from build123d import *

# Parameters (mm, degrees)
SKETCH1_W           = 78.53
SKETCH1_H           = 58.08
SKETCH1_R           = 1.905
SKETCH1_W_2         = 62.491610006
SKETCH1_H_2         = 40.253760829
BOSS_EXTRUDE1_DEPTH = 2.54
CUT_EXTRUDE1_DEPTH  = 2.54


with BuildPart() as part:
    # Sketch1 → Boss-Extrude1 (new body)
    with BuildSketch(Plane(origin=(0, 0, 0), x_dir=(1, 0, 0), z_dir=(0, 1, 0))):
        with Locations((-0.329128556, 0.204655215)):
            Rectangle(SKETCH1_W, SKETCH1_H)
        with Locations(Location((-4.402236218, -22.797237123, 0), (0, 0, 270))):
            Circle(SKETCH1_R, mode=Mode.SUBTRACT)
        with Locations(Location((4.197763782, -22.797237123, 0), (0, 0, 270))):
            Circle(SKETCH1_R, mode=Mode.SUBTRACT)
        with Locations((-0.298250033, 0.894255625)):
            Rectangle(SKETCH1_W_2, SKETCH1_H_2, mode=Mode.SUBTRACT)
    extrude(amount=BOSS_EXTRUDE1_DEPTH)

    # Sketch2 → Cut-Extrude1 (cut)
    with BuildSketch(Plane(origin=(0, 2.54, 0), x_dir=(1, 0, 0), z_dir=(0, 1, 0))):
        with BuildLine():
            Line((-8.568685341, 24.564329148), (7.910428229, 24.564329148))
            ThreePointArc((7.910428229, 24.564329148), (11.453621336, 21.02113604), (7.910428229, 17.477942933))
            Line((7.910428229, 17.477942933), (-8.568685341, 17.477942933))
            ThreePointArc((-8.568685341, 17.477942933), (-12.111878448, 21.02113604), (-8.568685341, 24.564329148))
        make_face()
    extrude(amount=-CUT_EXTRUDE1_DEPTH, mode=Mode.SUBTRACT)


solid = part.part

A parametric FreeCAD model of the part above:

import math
import FreeCAD as App
import Part
import Sketcher
from FreeCAD import Vector
Q = App.Units.Quantity


def add_polygon(sketch, points):
    """Adds a closed chain of lines whose ends are joined by coincident constraints."""
    first, n = sketch.GeometryCount, len(points)
    for a, b in zip(points, points[1:] + points[:1]):
        sketch.addGeometry(Part.LineSegment(App.Vector(*a, 0), App.Vector(*b, 0)), False)
    for i in range(n):
        sketch.addConstraint(Sketcher.Constraint("Coincident", first + i, 2, first + (i + 1) % n, 1))

doc = App.newDocument("Part")
params = doc.addObject("Spreadsheet::Sheet", "Params")
for row, (alias, value) in enumerate([
    ("sketch1_diameter", "0.15 in"),
    ("pad1_length", "0.1 in"),
    ("pocket1_length", "0.1 in"),
], start=1):
    params.set(f"A{row}", alias)
    params.set(f"B{row}", "=" + value)
    params.setAlias(f"B{row}", alias)

body = doc.addObject("PartDesign::Body", "Body")

# Sketch on XZ plane
sketch1 = doc.addObject("Sketcher::SketchObject", "Sketch")
body.addObject(sketch1)
sketch1.AttachmentSupport = (doc.XZ_Plane, [""])
sketch1.MapMode = "FlatFace"
add_polygon(sketch1, [(-39.594129, -29.244655), (-39.594129, 28.835345), (38.935871, 28.835345), (38.935871, -29.244655)])  # lines 0-3
sketch1.addGeometry(Part.Circle(Vector(-4.402236, 22.797237, 0), Vector(0, 0, 1), 1.905), False)  # 4
sketch1.addGeometry(Part.Circle(Vector(4.197764, 22.797237, 0), Vector(0, 0, 1), 1.905), False)  # 5
add_polygon(sketch1, [(30.947555, 19.232625), (-31.544055, 19.232625), (-31.544055, -21.021136), (30.947555, -21.021136)])  # lines 6-9
sketch1.addConstraint([
    Sketcher.Constraint("Vertical", 0),
    Sketcher.Constraint("Horizontal", 1),
    Sketcher.Constraint("Vertical", 2),
    Sketcher.Constraint("Horizontal", 3),
    Sketcher.Constraint("Horizontal", 6),
    Sketcher.Constraint("Vertical", 7),
    Sketcher.Constraint("Horizontal", 8),
    Sketcher.Constraint("Vertical", 9),
    Sketcher.Constraint("Equal", 4, 5),
    Sketcher.Constraint("Horizontal", 4, 3, 5, 3),
    Sketcher.Constraint("Diameter", 4, Q("0.15 in")),
    Sketcher.Constraint("DistanceX", 1, 1, 1, 2, 78.53),
    Sketcher.Constraint("DistanceY", 0, 1, 0, 2, 58.08),
    Sketcher.Constraint("DistanceX", 6, 2, 6, 1, 62.49161),
    Sketcher.Constraint("DistanceY", 7, 2, 7, 1, 40.253761),
    Sketcher.Constraint("DistanceX", 4, 3, 5, 3, 8.6),
    Sketcher.Constraint("DistanceX", 0, 2, -1, 1, 39.594129),
    Sketcher.Constraint("DistanceY", 6, 2, 0, 2, 9.60272),
    Sketcher.Constraint("DistanceX", 6, 2, 4, 3, 27.141819),
    Sketcher.Constraint("DistanceX", 4, 3, -1, 1, 4.402236),
    Sketcher.Constraint("DistanceY", -1, 1, 4, 3, 22.797237),
    Sketcher.Constraint("DistanceY", -1, 1, 0, 2, 28.835345),
])
sketch1.setExpression("Constraints[18]", "Params.sketch1_diameter")
pad1 = doc.addObject("PartDesign::Pad", "Pad")
body.addObject(pad1)
pad1.Profile = sketch1
pad1.setExpression("Length", "Params.pad1_length")
pad1.Reversed = True

# Sketch on XZ plane
sketch2 = doc.addObject("Sketcher::SketchObject", "Sketch001")
body.addObject(sketch2)
sketch2.AttachmentSupport = (doc.XZ_Plane, [""])
sketch2.MapMode = "FlatFace"
sketch2.AttachmentOffset = App.Placement(Vector(0, 0, -0.1 * 25.4), App.Rotation())
sketch2.addGeometry([
    Part.LineSegment(Vector(7.910428, -24.564329, 0), Vector(-8.568685, -24.564329, 0)),
    Part.ArcOfCircle(Part.Circle(Vector(-8.568685, -21.021136, 0), Vector(0, 0, 1), 3.543193), math.radians(90), math.radians(270)),
    Part.LineSegment(Vector(-8.568685, -17.477943, 0), Vector(7.910428, -17.477943, 0)),
    Part.ArcOfCircle(Part.Circle(Vector(7.910428, -21.021136, 0), Vector(0, 0, 1), 3.543193), math.radians(-90), math.radians(90)),
], False)
sketch2.addConstraint([
    Sketcher.Constraint("Tangent", 0, 2, 1, 2),
    Sketcher.Constraint("Tangent", 1, 1, 2, 1),
    Sketcher.Constraint("Tangent", 2, 2, 3, 2),
    Sketcher.Constraint("Tangent", 3, 1, 0, 1),
    Sketcher.Constraint("Horizontal", 0),
    Sketcher.Constraint("Horizontal", 2),
    Sketcher.Constraint("Radius", 1, 3.543193),
    Sketcher.Constraint("DistanceX", 0, 2, 0, 1, 16.479114),
    Sketcher.Constraint("DistanceX", -1, 1, 3, 3, 7.910428),
    Sketcher.Constraint("DistanceY", 0, 2, -1, 1, 24.564329),
])
pocket1 = doc.addObject("PartDesign::Pocket", "Pocket")
body.addObject(pocket1)
pocket1.Profile = sketch2
pocket1.setExpression("Length", "Params.pocket1_length")
pocket1.Reversed = True

doc.recompute()
